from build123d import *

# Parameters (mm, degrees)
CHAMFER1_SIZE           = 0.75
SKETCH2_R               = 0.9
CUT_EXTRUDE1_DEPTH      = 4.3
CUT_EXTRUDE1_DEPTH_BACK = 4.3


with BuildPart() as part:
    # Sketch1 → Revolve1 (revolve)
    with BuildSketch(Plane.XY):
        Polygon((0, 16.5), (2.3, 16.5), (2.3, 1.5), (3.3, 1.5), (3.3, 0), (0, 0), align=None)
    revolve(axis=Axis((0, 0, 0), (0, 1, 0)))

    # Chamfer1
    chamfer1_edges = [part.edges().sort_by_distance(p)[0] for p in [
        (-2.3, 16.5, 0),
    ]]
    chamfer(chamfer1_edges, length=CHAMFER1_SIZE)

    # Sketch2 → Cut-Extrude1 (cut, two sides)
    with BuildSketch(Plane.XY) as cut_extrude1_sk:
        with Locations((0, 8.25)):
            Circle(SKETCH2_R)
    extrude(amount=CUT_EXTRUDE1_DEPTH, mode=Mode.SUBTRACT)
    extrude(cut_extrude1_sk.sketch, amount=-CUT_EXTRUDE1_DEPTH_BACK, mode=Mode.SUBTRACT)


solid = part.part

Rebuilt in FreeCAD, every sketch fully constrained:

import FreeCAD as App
import Part
import Sketcher
from FreeCAD import Vector
Q = App.Units.Quantity


def edges_at(feature, points):
    """Names of the edges that pass closest to the given points."""
    edges = feature.Shape.Edges
    near = lambda p: min(range(len(edges)), key=lambda i: edges[i].distToShape(Part.Vertex(*p))[0])
    return sorted({f"Edge{near(p) + 1}" for p in points})

doc = App.newDocument("Part")
body = doc.addObject("PartDesign::Body", "Body")

sketch1 = body.newObject("Sketcher::SketchObject", "Sketch")
sketch1.AttachmentSupport = (doc.getObject("XY_Plane"), [""])
sketch1.MapMode = "FlatFace"
sketch1.addGeometry(Part.LineSegment(Vector(2.3, 16.5, 0), Vector(0, 16.5, 0)), False)
sketch1.addGeometry(Part.LineSegment(Vector(0, 16.5, 0), Vector(0, 0, 0)), False)
sketch1.addGeometry(Part.LineSegment(Vector(0, 0, 0), Vector(3.3, 0, 0)), False)
sketch1.addGeometry(Part.LineSegment(Vector(3.3, 0, 0), Vector(3.3, 1.5, 0)), False)
sketch1.addGeometry(Part.LineSegment(Vector(3.3, 1.5, 0), Vector(2.3, 1.5, 0)), False)
sketch1.addGeometry(Part.LineSegment(Vector(2.3, 1.5, 0), Vector(2.3, 16.5, 0)), False)
sketch1.addConstraint(Sketcher.Constraint("Coincident", 0, 2, 1, 1))
sketch1.addConstraint(Sketcher.Constraint("Coincident", 1, 2, 2, 1))
sketch1.addConstraint(Sketcher.Constraint("Coincident", 2, 2, 3, 1))
sketch1.addConstraint(Sketcher.Constraint("Coincident", 3, 2, 4, 1))
sketch1.addConstraint(Sketcher.Constraint("Coincident", 4, 2, 5, 1))
sketch1.addConstraint(Sketcher.Constraint("Coincident", 5, 2, 0, 1))
sketch1.addConstraint(Sketcher.Constraint("Horizontal", 0))
sketch1.addConstraint(Sketcher.Constraint("Vertical", 1))
sketch1.addConstraint(Sketcher.Constraint("Horizontal", 2))
sketch1.addConstraint(Sketcher.Constraint("Vertical", 3))
sketch1.addConstraint(Sketcher.Constraint("Horizontal", 4))
sketch1.addConstraint(Sketcher.Constraint("Vertical", 5))
sketch1.addConstraint(Sketcher.Constraint("Coincident", 1, 2, -1, 1))
sketch1.addConstraint(Sketcher.Constraint("DistanceX", 4, 2, 4, 1, Q("1 mm")))
sketch1.addConstraint(Sketcher.Constraint("DistanceY", 5, 1, 5, 2, Q("15 mm")))
sketch1.addConstraint(Sketcher.Constraint("DistanceX", 0, 2, 0, 1, Q("2.3 mm")))
sketch1.addConstraint(Sketcher.Constraint("DistanceY", 1, 2, 1, 1, Q("16.5 mm")))
revolution = body.newObject("PartDesign::Revolution", "Revolution")
revolution.Profile = sketch1
revolution.ReferenceAxis = (sketch1, ["V_Axis"])
revolution.Angle = 360
doc.recompute()

chamfer = body.newObject("PartDesign::Chamfer", "Chamfer")
chamfer.Base = (revolution, edges_at(revolution, [(-2.3, 16.5, 0)]))
chamfer.Size = 0.75

sketch2 = body.newObject("Sketcher::SketchObject", "Sketch001")
sketch2.AttachmentSupport = (doc.getObject("XY_Plane"), [""])
sketch2.MapMode = "FlatFace"
sketch2.addGeometry(Part.Circle(Vector(0, 8.25, 0), Vector(0, 0, 1), 0.9), False)
sketch2.addConstraint(Sketcher.Constraint("PointOnObject", 0, 3, -2))
sketch2.addConstraint(Sketcher.Constraint("Diameter", 0, Q("1.8 mm")))
sketch2.addConstraint(Sketcher.Constraint("DistanceY", -1, 1, 0, 3, Q("8.25 mm")))
pocket1 = body.newObject("PartDesign::Pocket", "Pocket")
pocket1.Profile = sketch2
pocket1.Type = "ThroughAll"
pocket1.Midplane = True

doc.recompute()
